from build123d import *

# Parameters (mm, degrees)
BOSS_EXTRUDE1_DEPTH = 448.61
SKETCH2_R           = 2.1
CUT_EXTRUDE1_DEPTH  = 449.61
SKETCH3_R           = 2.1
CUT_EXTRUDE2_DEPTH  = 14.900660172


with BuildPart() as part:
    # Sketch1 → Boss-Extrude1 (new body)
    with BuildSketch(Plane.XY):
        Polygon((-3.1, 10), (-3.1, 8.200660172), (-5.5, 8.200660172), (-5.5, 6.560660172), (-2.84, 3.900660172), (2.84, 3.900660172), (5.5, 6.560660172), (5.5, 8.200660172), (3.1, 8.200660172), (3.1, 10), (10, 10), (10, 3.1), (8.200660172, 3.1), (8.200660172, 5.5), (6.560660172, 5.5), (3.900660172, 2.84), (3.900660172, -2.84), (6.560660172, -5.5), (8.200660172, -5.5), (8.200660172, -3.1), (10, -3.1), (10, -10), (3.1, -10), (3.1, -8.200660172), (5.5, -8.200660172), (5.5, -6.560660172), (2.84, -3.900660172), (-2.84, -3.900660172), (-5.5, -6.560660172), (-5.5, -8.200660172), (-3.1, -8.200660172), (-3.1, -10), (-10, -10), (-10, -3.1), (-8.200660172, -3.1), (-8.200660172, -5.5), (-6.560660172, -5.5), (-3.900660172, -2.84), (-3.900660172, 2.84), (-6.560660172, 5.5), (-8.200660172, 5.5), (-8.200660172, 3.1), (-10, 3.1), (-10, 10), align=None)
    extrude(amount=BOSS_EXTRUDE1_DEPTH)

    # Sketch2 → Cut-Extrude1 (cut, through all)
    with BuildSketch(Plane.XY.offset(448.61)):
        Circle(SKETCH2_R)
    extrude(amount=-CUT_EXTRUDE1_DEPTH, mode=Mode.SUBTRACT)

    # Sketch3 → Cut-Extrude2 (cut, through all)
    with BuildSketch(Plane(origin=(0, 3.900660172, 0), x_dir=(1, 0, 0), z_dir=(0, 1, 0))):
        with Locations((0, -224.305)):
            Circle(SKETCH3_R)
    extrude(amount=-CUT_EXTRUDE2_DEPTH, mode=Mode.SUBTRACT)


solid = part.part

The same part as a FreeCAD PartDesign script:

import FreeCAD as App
import Part
import Sketcher
Q = App.Units.Quantity

doc = App.newDocument("Part")
body = doc.addObject("PartDesign::Body", "Body")

# Sketch on XY plane
sketch1 = body.newObject("Sketcher::SketchObject", "Sketch")
sketch1.AttachmentSupport = (doc.getObject("XY_Plane"), [""])
sketch1.MapMode = "FlatFace"
sketch1.addGeometry(Part.LineSegment(App.Vector(-3.1, 8.2, 0), App.Vector(-3.1, 10, 0)), False)
sketch1.addGeometry(Part.LineSegment(App.Vector(-3.1, 10, 0), App.Vector(-10, 10, 0)), False)
sketch1.addGeometry(Part.LineSegment(App.Vector(-10, 10, 0), App.Vector(-10, 3.1, 0)), False)
sketch1.addGeometry(Part.LineSegment(App.Vector(-10, 3.1, 0), App.Vector(-8.2, 3.1, 0)), False)
sketch1.addGeometry(Part.LineSegment(App.Vector(-8.2, 3.1, 0), App.Vector(-8.2, 5.5, 0)), False)
sketch1.addGeometry(Part.LineSegment(App.Vector(-8.2, 5.5, 0), App.Vector(-6.6, 5.5, 0)), False)
sketch1.addGeometry(Part.LineSegment(App.Vector(-6.6, 5.5, 0), App.Vector(-3.9, 2.8, 0)), False)
sketch1.addGeometry(Part.LineSegment(App.Vector(-3.9, 2.8, 0), App.Vector(-3.9, -2.8, 0)), False)
sketch1.addGeometry(Part.LineSegment(App.Vector(-3.9, -2.8, 0), App.Vector(-6.6, -5.5, 0)), False)
sketch1.addGeometry(Part.LineSegment(App.Vector(-6.6, -5.5, 0), App.Vector(-8.2, -5.5, 0)), False)
sketch1.addGeometry(Part.LineSegment(App.Vector(-8.2, -5.5, 0), App.Vector(-8.2, -3.1, 0)), False)
sketch1.addGeometry(Part.LineSegment(App.Vector(-8.2, -3.1, 0), App.Vector(-10, -3.1, 0)), False)
sketch1.addGeometry(Part.LineSegment(App.Vector(-10, -3.1, 0), App.Vector(-10, -10, 0)), False)
sketch1.addGeometry(Part.LineSegment(App.Vector(-10, -10, 0), App.Vector(-3.1, -10, 0)), False)
sketch1.addGeometry(Part.LineSegment(App.Vector(-3.1, -10, 0), App.Vector(-3.1, -8.2, 0)), False)
sketch1.addGeometry(Part.LineSegment(App.Vector(-3.1, -8.2, 0), App.Vector(-5.5, -8.2, 0)), False)
sketch1.addGeometry(Part.LineSegment(App.Vector(-5.5, -8.2, 0), App.Vector(-5.5, -6.6, 0)), False)
sketch1.addGeometry(Part.LineSegment(App.Vector(-5.5, -6.6, 0), App.Vector(-2.8, -3.9, 0)), False)
sketch1.addGeometry(Part.LineSegment(App.Vector(-2.8, -3.9, 0), App.Vector(2.8, -3.9, 0)), False)
sketch1.addGeometry(Part.LineSegment(App.Vector(2.8, -3.9, 0), App.Vector(5.5, -6.6, 0)), False)
sketch1.addGeometry(Part.LineSegment(App.Vector(5.5, -6.6, 0), App.Vector(5.5, -8.2, 0)), False)
sketch1.addGeometry(Part.LineSegment(App.Vector(5.5, -8.2, 0), App.Vector(3.1, -8.2, 0)), False)
sketch1.addGeometry(Part.LineSegment(App.Vector(3.1, -8.2, 0), App.Vector(3.1, -10, 0)), False)
sketch1.addGeometry(Part.LineSegment(App.Vector(3.1, -10, 0), App.Vector(10, -10, 0)), False)
sketch1.addGeometry(Part.LineSegment(App.Vector(10, -10, 0), App.Vector(10, -3.1, 0)), False)
sketch1.addGeometry(Part.LineSegment(App.Vector(10, -3.1, 0), App.Vector(8.2, -3.1, 0)), False)
sketch1.addGeometry(Part.LineSegment(App.Vector(8.2, -3.1, 0), App.Vector(8.2, -5.5, 0)), False)
sketch1.addGeometry(Part.LineSegment(App.Vector(8.2, -5.5, 0), App.Vector(6.6, -5.5, 0)), False)
sketch1.addGeometry(Part.LineSegment(App.Vector(6.6, -5.5, 0), App.Vector(3.9, -2.8, 0)), False)
sketch1.addGeometry(Part.LineSegment(App.Vector(3.9, -2.8, 0), App.Vector(3.9, 2.8, 0)), False)
sketch1.addGeometry(Part.LineSegment(App.Vector(3.9, 2.8, 0), App.Vector(6.6, 5.5, 0)), False)
sketch1.addGeometry(Part.LineSegment(App.Vector(6.6, 5.5, 0), App.Vector(8.2, 5.5, 0)), False)
sketch1.addGeometry(Part.LineSegment(App.Vector(8.2, 5.5, 0), App.Vector(8.2, 3.1, 0)), False)
sketch1.addGeometry(Part.LineSegment(App.Vector(8.2, 3.1, 0), App.Vector(10, 3.1, 0)), False)
sketch1.addGeometry(Part.LineSegment(App.Vector(10, 3.1, 0), App.Vector(10, 10, 0)), False)
sketch1.addGeometry(Part.LineSegment(App.Vector(10, 10, 0), App.Vector(3.1, 10, 0)), False)
sketch1.addGeometry(Part.LineSegment(App.Vector(3.1, 10, 0), App.Vector(3.1, 8.2, 0)), False)
sketch1.addGeometry(Part.LineSegment(App.Vector(3.1, 8.2, 0), App.Vector(5.5, 8.2, 0)), False)
sketch1.addGeometry(Part.LineSegment(App.Vector(5.5, 8.2, 0), App.Vector(5.5, 6.6, 0)), False)
sketch1.addGeometry(Part.LineSegment(App.Vector(5.5, 6.6, 0), App.Vector(2.8, 3.9, 0)), False)
sketch1.addGeometry(Part.LineSegment(App.Vector(2.8, 3.9, 0), App.Vector(-2.8, 3.9, 0)), False)
sketch1.addGeometry(Part.LineSegment(App.Vector(-2.8, 3.9, 0), App.Vector(-5.5, 6.6, 0)), False)
sketch1.addGeometry(Part.LineSegment(App.Vector(-5.5, 6.6, 0), App.Vector(-5.5, 8.2, 0)), False)
sketch1.addGeometry(Part.LineSegment(App.Vector(-5.5, 8.2, 0), App.Vector(-3.1, 8.2, 0)), False)
sketch1.addConstraint(Sketcher.Constraint("Coincident", 0, 2, 1, 1))
sketch1.addConstraint(Sketcher.Constraint("Coincident", 1, 2, 2, 1))
sketch1.addConstraint(Sketcher.Constraint("Coincident", 2, 2, 3, 1))
sketch1.addConstraint(Sketcher.Constraint("Coincident", 3, 2, 4, 1))
sketch1.addConstraint(Sketcher.Constraint("Coincident", 4, 2, 5, 1))
sketch1.addConstraint(Sketcher.Constraint("Coincident", 5, 2, 6, 1))
sketch1.addConstraint(Sketcher.Constraint("Coincident", 6, 2, 7, 1))
sketch1.addConstraint(Sketcher.Constraint("Coincident", 7, 2, 8, 1))
sketch1.addConstraint(Sketcher.Constraint("Coincident", 8, 2, 9, 1))
sketch1.addConstraint(Sketcher.Constraint("Coincident", 9, 2, 10, 1))
sketch1.addConstraint(Sketcher.Constraint("Coincident", 10, 2, 11, 1))
sketch1.addConstraint(Sketcher.Constraint("Coincident", 11, 2, 12, 1))
sketch1.addConstraint(Sketcher.Constraint("Coincident", 12, 2, 13, 1))
sketch1.addConstraint(Sketcher.Constraint("Coincident", 13, 2, 14, 1))
sketch1.addConstraint(Sketcher.Constraint("Coincident", 14, 2, 15, 1))
sketch1.addConstraint(Sketcher.Constraint("Coincident", 15, 2, 16, 1))
sketch1.addConstraint(Sketcher.Constraint("Coincident", 16, 2, 17, 1))
sketch1.addConstraint(Sketcher.Constraint("Coincident", 17, 2, 18, 1))
sketch1.addConstraint(Sketcher.Constraint("Coincident", 18, 2, 19, 1))
sketch1.addConstraint(Sketcher.Constraint("Coincident", 19, 2, 20, 1))
sketch1.addConstraint(Sketcher.Constraint("Coincident", 20, 2, 21, 1))
sketch1.addConstraint(Sketcher.Constraint("Coincident", 21, 2, 22, 1))
sketch1.addConstraint(Sketcher.Constraint("Coincident", 22, 2, 23, 1))
sketch1.addConstraint(Sketcher.Constraint("Coincident", 23, 2, 24, 1))
sketch1.addConstraint(Sketcher.Constraint("Coincident", 24, 2, 25, 1))
sketch1.addConstraint(Sketcher.Constraint("Coincident", 25, 2, 26, 1))
sketch1.addConstraint(Sketcher.Constraint("Coincident", 26, 2, 27, 1))
sketch1.addConstraint(Sketcher.Constraint("Coincident", 27, 2, 28, 1))
sketch1.addConstraint(Sketcher.Constraint("Coincident", 28, 2, 29, 1))
sketch1.addConstraint(Sketcher.Constraint("Coincident", 29, 2, 30, 1))
sketch1.addConstraint(Sketcher.Constraint("Coincident", 30, 2, 31, 1))
sketch1.addConstraint(Sketcher.Constraint("Coincident", 31, 2, 32, 1))
sketch1.addConstraint(Sketcher.Constraint("Coincident", 32, 2, 33, 1))
sketch1.addConstraint(Sketcher.Constraint("Coincident", 33, 2, 34, 1))
sketch1.addConstraint(Sketcher.Constraint("Coincident", 34, 2, 35, 1))
sketch1.addConstraint(Sketcher.Constraint("Coincident", 35, 2, 36, 1))
sketch1.addConstraint(Sketcher.Constraint("Coincident", 36, 2, 37, 1))
sketch1.addConstraint(Sketcher.Constraint("Coincident", 37, 2, 38, 1))
sketch1.addConstraint(Sketcher.Constraint("Coincident", 38, 2, 39, 1))
sketch1.addConstraint(Sketcher.Constraint("Coincident", 39, 2, 40, 1))
sketch1.addConstraint(Sketcher.Constraint("Coincident", 40, 2, 41, 1))
sketch1.addConstraint(Sketcher.Constraint("Coincident", 41, 2, 42, 1))
sketch1.addConstraint(Sketcher.Constraint("Coincident", 42, 2, 43, 1))
sketch1.addConstraint(Sketcher.Constraint("Coincident", 43, 2, 0, 1))
sketch1.addConstraint(Sketcher.Constraint("Vertical", 0))
sketch1.addConstraint(Sketcher.Constraint("Horizontal", 1))
sketch1.addConstraint(Sketcher.Constraint("Vertical", 2))
sketch1.addConstraint(Sketcher.Constraint("Horizontal", 3))
sketch1.addConstraint(Sketcher.Constraint("Vertical", 4))
sketch1.addConstraint(Sketcher.Constraint("Horizontal", 5))
sketch1.addConstraint(Sketcher.Constraint("Vertical", 7))
sketch1.addConstraint(Sketcher.Constraint("Horizontal", 9))
sketch1.addConstraint(Sketcher.Constraint("Vertical", 10))
sketch1.addConstraint(Sketcher.Constraint("Horizontal", 11))
sketch1.addConstraint(Sketcher.Constraint("Vertical", 12))
sketch1.addConstraint(Sketcher.Constraint("Horizontal", 13))
sketch1.addConstraint(Sketcher.Constraint("Vertical", 14))
sketch1.addConstraint(Sketcher.Constraint("Horizontal", 15))
sketch1.addConstraint(Sketcher.Constraint("Vertical", 16))
sketch1.addConstraint(Sketcher.Constraint("Horizontal", 18))
sketch1.addConstraint(Sketcher.Constraint("Vertical", 20))
sketch1.addConstraint(Sketcher.Constraint("Horizontal", 21))
sketch1.addConstraint(Sketcher.Constraint("Vertical", 22))
sketch1.addConstraint(Sketcher.Constraint("Horizontal", 23))
sketch1.addConstraint(Sketcher.Constraint("Vertical", 24))
sketch1.addConstraint(Sketcher.Constraint("Horizontal", 25))
sketch1.addConstraint(Sketcher.Constraint("Vertical", 26))
sketch1.addConstraint(Sketcher.Constraint("Horizontal", 27))
sketch1.addConstraint(Sketcher.Constraint("Vertical", 29))
sketch1.addConstraint(Sketcher.Constraint("Horizontal", 31))
sketch1.addConstraint(Sketcher.Constraint("Vertical", 32))
sketch1.addConstraint(Sketcher.Constraint("Horizontal", 33))
sketch1.addConstraint(Sketcher.Constraint("Vertical", 34))
sketch1.addConstraint(Sketcher.Constraint("Horizontal", 35))
sketch1.addConstraint(Sketcher.Constraint("Vertical", 36))
sketch1.addConstraint(Sketcher.Constraint("Horizontal", 37))
sketch1.addConstraint(Sketcher.Constraint("Vertical", 38))
sketch1.addConstraint(Sketcher.Constraint("Horizontal", 40))
sketch1.addConstraint(Sketcher.Constraint("Vertical", 42))
sketch1.addConstraint(Sketcher.Constraint("Horizontal", 43))
sketch1.addConstraint(Sketcher.Constraint("Symmetric", 0, 2, 22, 2, -1, 1))
sketch1.addConstraint(Sketcher.Constraint("Symmetric", 2, 2, 24, 2, -1, 1))
sketch1.addConstraint(Sketcher.Constraint("Symmetric", 4, 2, 26, 2, -1, 1))
sketch1.addConstraint(Sketcher.Constraint("Symmetric", 6, 2, 28, 2, -1, 1))
sketch1.addConstraint(Sketcher.Constraint("Symmetric", 8, 2, 30, 2, -1, 1))
sketch1.addConstraint(Sketcher.Constraint("Symmetric", 10, 2, 32, 2, -1, 1))
sketch1.addConstraint(Sketcher.Constraint("Symmetric", 12, 2, 34, 2, -1, 1))
sketch1.addConstraint(Sketcher.Constraint("Symmetric", 14, 2, 36, 2, -1, 1))
sketch1.addConstraint(Sketcher.Constraint("Symmetric", 16, 2, 38, 2, -1, 1))
sketch1.addConstraint(Sketcher.Constraint("Symmetric", 17, 2, 39, 2, -1, 1))
sketch1.addConstraint(Sketcher.Constraint("Symmetric", 19, 2, 41, 2, -1, 1))
sketch1.addConstraint(Sketcher.Constraint("Symmetric", 16, 2, 19, 2, -2))
sketch1.addConstraint(Sketcher.Constraint("Symmetric", 14, 2, 21, 2, -2))
sketch1.addConstraint(Sketcher.Constraint("Symmetric", 12, 2, 23, 2, -2))
sketch1.addConstraint(Sketcher.Constraint("Symmetric", 10, 2, 25, 2, -2))
sketch1.addConstraint(Sketcher.Constraint("Symmetric", 8, 2, 27, 2, -2))
sketch1.addConstraint(Sketcher.Constraint("Perpendicular", 6, 8))
sketch1.addConstraint(Sketcher.Constraint("Parallel", 8, 17))
sketch1.addConstraint(Sketcher.Constraint("Perpendicular", 17, 19))
sketch1.addConstraint(Sketcher.Constraint("Parallel", 19, 28))
sketch1.addConstraint(Sketcher.Constraint("Perpendicular", 28, 30))
sketch1.addConstraint(Sketcher.Constraint("Perpendicular", 39, 41))
sketch1.addConstraint(Sketcher.Constraint("Horizontal", 7, 2, 28, 2))
sketch1.addConstraint(Sketcher.Constraint("Horizontal", 37, 2, 42, 2))
sketch1.addConstraint(Sketcher.Constraint("Equal", 33, 0))
sketch1.addConstraint(Sketcher.Constraint("Equal", 35, 2))
sketch1.addConstraint(Sketcher.Constraint("Equal", 43, 4))
sketch1.addConstraint(Sketcher.Constraint("Equal", 40, 7))
sketch1.addConstraint(Sketcher.Constraint("Equal", 31, 16))
sketch1.addConstraint(Sketcher.Constraint("Equal", 8, 17))
sketch1.addConstraint(Sketcher.Constraint("DistanceX", 1, 2, 1, 1, Q("6.9 mm")))
sketch1.addConstraint(Sketcher.Constraint("DistanceX", 15, 2, 15, 1, Q("2.4 mm")))
sketch1.addConstraint(Sketcher.Constraint("DistanceY", -1, 1, 0, 2, Q("10 mm")))
sketch1.addConstraint(Sketcher.Constraint("DistanceX", 5, 1, 5, 2, Q("1.64 mm")))
sketch1.addConstraint(Sketcher.Constraint("DistanceX", 18, 1, 18, 2, Q("5.68 mm")))
sketch1.addConstraint(Sketcher.Constraint("DistanceX", 3, 1, 3, 2, Q("1.79934 mm")))
pad1 = body.newObject("PartDesign::Pad", "Pad")
pad1.Profile = sketch1
pad1.Length = 448.61

# Sketch on XY plane
sketch2 = body.newObject("Sketcher::SketchObject", "Sketch001")
sketch2.AttachmentSupport = (doc.getObject("XY_Plane"), [""])
sketch2.MapMode = "FlatFace"
sketch2.AttachmentOffset = App.Placement(App.Vector(0, 0, 448.61), App.Rotation())
sketch2.addGeometry(Part.Circle(App.Vector(0, 0, 0), App.Vector(0, 0, 1), 2.1), False)
sketch2.addConstraint(Sketcher.Constraint("Coincident", 0, 3, -1, 1))
sketch2.addConstraint(Sketcher.Constraint("Diameter", 0, Q("4.2 mm")))
pocket1 = body.newObject("PartDesign::Pocket", "Pocket")
pocket1.Profile = sketch2
pocket1.Type = "ThroughAll"

# Sketch on XZ plane
sketch3 = body.newObject("Sketcher::SketchObject", "Sketch002")
sketch3.AttachmentSupport = (doc.getObject("XZ_Plane"), [""])
sketch3.MapMode = "FlatFace"
sketch3.AttachmentOffset = App.Placement(App.Vector(0, 0, -3.90066), App.Rotation())
sketch3.addGeometry(Part.Circle(App.Vector(0, 224.3, 0), App.Vector(0, 0, 1), 2.1), False)
sketch3.addConstraint(Sketcher.Constraint("PointOnObject", 0, 3, -2))
sketch3.addConstraint(Sketcher.Constraint("Diameter", 0, Q("4.2 mm")))
sketch3.addConstraint(Sketcher.Constraint("DistanceY", -1, 1, 0, 3, Q("224.305 mm")))
pocket2 = body.newObject("PartDesign::Pocket", "Pocket001")
pocket2.Profile = sketch3
pocket2.Type = "ThroughAll"
pocket2.Reversed = True

doc.recompute()
